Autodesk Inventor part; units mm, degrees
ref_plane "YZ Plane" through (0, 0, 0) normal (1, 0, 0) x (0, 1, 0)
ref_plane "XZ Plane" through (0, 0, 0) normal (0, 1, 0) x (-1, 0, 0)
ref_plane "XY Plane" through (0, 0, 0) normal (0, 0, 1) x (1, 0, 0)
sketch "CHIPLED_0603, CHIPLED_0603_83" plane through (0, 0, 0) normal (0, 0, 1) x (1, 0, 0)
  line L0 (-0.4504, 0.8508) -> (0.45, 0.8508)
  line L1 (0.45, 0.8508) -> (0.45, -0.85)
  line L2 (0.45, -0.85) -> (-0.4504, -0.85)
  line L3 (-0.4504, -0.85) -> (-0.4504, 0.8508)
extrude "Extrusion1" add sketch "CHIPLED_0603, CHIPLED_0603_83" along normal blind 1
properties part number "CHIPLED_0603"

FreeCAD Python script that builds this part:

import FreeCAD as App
import Part
import Sketcher
from FreeCAD import Vector
Q = App.Units.Quantity

doc = App.newDocument("Part")
body = doc.addObject("PartDesign::Body", "Body")

sketch1 = body.newObject("Sketcher::SketchObject", "Sketch")
sketch1.AttachmentSupport = (doc.getObject("XY_Plane"), [""])
sketch1.MapMode = "FlatFace"
sketch1.addGeometry(Part.LineSegment(Vector(0.45, 0.8508, 0), Vector(-0.4504, 0.8508, 0)), False)
sketch1.addGeometry(Part.LineSegment(Vector(-0.4504, 0.8508, 0), Vector(-0.4504, -0.85, 0)), False)
sketch1.addGeometry(Part.LineSegment(Vector(-0.4504, -0.85, 0), Vector(0.45, -0.85, 0)), False)
sketch1.addGeometry(Part.LineSegment(Vector(0.45, -0.85, 0), Vector(0.45, 0.8508, 0)), False)
sketch1.addConstraint(Sketcher.Constraint("Coincident", 0, 2, 1, 1))
sketch1.addConstraint(Sketcher.Constraint("Coincident", 1, 2, 2, 1))
sketch1.addConstraint(Sketcher.Constraint("Coincident", 2, 2, 3, 1))
sketch1.addConstraint(Sketcher.Constraint("Coincident", 3, 2, 0, 1))
sketch1.addConstraint(Sketcher.Constraint("Horizontal", 0))
sketch1.addConstraint(Sketcher.Constraint("Vertical", 1))
sketch1.addConstraint(Sketcher.Constraint("Horizontal", 2))
sketch1.addConstraint(Sketcher.Constraint("Vertical", 3))
sketch1.addConstraint(Sketcher.Constraint("DistanceY", 1, 2, -1, 1, Q("0.85 mm")))
sketch1.addConstraint(Sketcher.Constraint("DistanceX", -1, 1, 2, 2, Q("0.45 mm")))
sketch1.addConstraint(Sketcher.Constraint("DistanceX", 0, 2, 0, 1, Q("0.9004 mm")))
sketch1.addConstraint(Sketcher.Constraint("DistanceY", 1, 2, 1, 1, Q("1.7008 mm")))
pad1 = body.newObject("PartDesign::Pad", "Pad")
pad1.Profile = sketch1
pad1.Length = 1

doc.recompute()
